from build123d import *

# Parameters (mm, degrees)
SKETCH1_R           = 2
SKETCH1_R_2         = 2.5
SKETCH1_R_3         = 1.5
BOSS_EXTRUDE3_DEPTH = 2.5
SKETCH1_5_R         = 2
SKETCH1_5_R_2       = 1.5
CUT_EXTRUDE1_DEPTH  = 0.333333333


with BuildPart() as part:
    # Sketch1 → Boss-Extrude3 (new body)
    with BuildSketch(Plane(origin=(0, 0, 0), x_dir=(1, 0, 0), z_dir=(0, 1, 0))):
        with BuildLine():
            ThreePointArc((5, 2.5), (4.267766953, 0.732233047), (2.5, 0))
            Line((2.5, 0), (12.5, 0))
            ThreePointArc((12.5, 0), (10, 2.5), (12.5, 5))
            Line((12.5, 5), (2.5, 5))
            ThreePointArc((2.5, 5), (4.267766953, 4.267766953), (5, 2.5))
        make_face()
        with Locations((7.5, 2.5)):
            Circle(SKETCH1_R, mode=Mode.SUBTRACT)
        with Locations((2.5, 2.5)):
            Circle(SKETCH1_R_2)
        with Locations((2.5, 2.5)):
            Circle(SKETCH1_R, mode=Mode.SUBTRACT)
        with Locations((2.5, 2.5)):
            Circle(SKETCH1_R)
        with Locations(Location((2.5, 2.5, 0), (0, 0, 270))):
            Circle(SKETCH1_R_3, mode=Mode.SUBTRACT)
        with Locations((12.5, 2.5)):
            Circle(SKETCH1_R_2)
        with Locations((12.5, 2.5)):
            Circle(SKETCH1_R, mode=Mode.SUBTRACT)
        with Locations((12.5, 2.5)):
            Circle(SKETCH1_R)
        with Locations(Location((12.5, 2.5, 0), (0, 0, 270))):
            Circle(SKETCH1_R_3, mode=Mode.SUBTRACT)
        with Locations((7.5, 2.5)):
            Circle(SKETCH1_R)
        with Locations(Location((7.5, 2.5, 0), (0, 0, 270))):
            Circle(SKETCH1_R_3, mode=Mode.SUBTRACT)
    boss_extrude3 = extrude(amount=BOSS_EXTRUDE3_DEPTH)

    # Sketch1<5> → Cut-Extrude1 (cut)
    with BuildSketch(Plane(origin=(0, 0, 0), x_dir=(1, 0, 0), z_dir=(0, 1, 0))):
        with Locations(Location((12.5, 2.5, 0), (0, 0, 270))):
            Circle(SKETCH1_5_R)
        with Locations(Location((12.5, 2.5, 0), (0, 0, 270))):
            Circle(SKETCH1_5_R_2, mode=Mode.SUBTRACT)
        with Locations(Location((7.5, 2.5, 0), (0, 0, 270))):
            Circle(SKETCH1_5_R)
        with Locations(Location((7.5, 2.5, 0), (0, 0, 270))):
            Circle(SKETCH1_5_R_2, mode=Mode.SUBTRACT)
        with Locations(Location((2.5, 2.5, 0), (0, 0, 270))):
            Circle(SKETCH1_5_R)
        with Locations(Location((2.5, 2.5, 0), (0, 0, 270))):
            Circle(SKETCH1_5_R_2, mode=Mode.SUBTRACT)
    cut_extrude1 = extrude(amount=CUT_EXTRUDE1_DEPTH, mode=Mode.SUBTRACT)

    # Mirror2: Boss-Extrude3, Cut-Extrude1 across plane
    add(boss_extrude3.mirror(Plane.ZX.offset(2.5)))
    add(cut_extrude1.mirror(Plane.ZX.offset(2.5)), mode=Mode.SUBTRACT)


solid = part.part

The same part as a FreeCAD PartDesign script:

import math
import FreeCAD as App
import Part
import Sketcher
from FreeCAD import Vector
Q = App.Units.Quantity

doc = App.newDocument("Part")
body = doc.addObject("PartDesign::Body", "Body")

# Sketch on XZ plane
sketch1 = body.newObject("Sketcher::SketchObject", "Sketch")
sketch1.AttachmentSupport = (doc.getObject("XZ_Plane"), [""])
sketch1.MapMode = "FlatFace"
sketch1.addGeometry(Part.LineSegment(Vector(2.5, 0, 0), Vector(12.5, 0, 0)), False)
sketch1.addGeometry(Part.ArcOfCircle(Part.Circle(Vector(12.5, -2.5, 0), Vector(0, 0, 1), 2.5), math.radians(-90), math.radians(90)), False)
sketch1.addGeometry(Part.LineSegment(Vector(12.5, -5, 0), Vector(2.5, -5, 0)), False)
sketch1.addGeometry(Part.ArcOfCircle(Part.Circle(Vector(2.5, -2.5, 0), Vector(0, 0, 1), 2.5), math.radians(90), math.radians(270)), False)
sketch1.addGeometry(Part.Circle(Vector(2.5, -2.5, 0), Vector(0, 0, 1), 1.5), False)
sketch1.addGeometry(Part.Circle(Vector(7.5, -2.5, 0), Vector(0, 0, 1), 1.5), False)
sketch1.addGeometry(Part.Circle(Vector(12.5, -2.5, 0), Vector(0, 0, 1), 1.5), False)
sketch1.addConstraint(Sketcher.Constraint("Tangent", 0, 2, 1, 2))
sketch1.addConstraint(Sketcher.Constraint("Tangent", 1, 1, 2, 1))
sketch1.addConstraint(Sketcher.Constraint("Tangent", 2, 2, 3, 2))
sketch1.addConstraint(Sketcher.Constraint("Tangent", 3, 1, 0, 1))
sketch1.addConstraint(Sketcher.Constraint("Horizontal", 0))
sketch1.addConstraint(Sketcher.Constraint("Horizontal", 2))
sketch1.addConstraint(Sketcher.Constraint("Coincident", 4, 3, 3, 3))
sketch1.addConstraint(Sketcher.Constraint("Coincident", 6, 3, 1, 3))
sketch1.addConstraint(Sketcher.Constraint("Equal", 4, 5))
sketch1.addConstraint(Sketcher.Constraint("Equal", 5, 6))
sketch1.addConstraint(Sketcher.Constraint("PointOnObject", 0, 2, -1))
sketch1.addConstraint(Sketcher.Constraint("Horizontal", 4, 3, 5, 3))
sketch1.addConstraint(Sketcher.Constraint("Diameter", 4, Q("3 mm")))
sketch1.addConstraint(Sketcher.Constraint("Radius", 1, Q("2.5 mm")))
sketch1.addConstraint(Sketcher.Constraint("DistanceX", 0, 1, 0, 2, Q("10 mm")))
sketch1.addConstraint(Sketcher.Constraint("DistanceX", 5, 3, 1, 3, Q("5 mm")))
sketch1.addConstraint(Sketcher.Constraint("DistanceX", -1, 1, 1, 3, Q("12.5 mm")))
pad1 = body.newObject("PartDesign::Pad", "Pad")
pad1.Profile = sketch1
pad1.Length = 2.5
pad1.Reversed = True

# Sketch on XZ plane
sketch2 = body.newObject("Sketcher::SketchObject", "Sketch001")
sketch2.AttachmentSupport = (doc.getObject("XZ_Plane"), [""])
sketch2.MapMode = "FlatFace"
sketch2.addGeometry(Part.Circle(Vector(12.5, -2.5, 0), Vector(0, 0, 1), 2), False)
sketch2.addGeometry(Part.Circle(Vector(12.5, -2.5, 0), Vector(0, 0, 1), 1.5), False)
sketch2.addGeometry(Part.Circle(Vector(7.5, -2.5, 0), Vector(0, 0, 1), 2), False)
sketch2.addGeometry(Part.Circle(Vector(7.5, -2.5, 0), Vector(0, 0, 1), 1.5), False)
sketch2.addGeometry(Part.Circle(Vector(2.5, -2.5, 0), Vector(0, 0, 1), 2), False)
sketch2.addGeometry(Part.Circle(Vector(2.5, -2.5, 0), Vector(0, 0, 1), 1.5), False)
sketch2.addConstraint(Sketcher.Constraint("Coincident", 1, 3, 0, 3))
sketch2.addConstraint(Sketcher.Constraint("Coincident", 3, 3, 2, 3))
sketch2.addConstraint(Sketcher.Constraint("Coincident", 5, 3, 4, 3))
sketch2.addConstraint(Sketcher.Constraint("Equal", 0, 2))
sketch2.addConstraint(Sketcher.Constraint("Equal", 1, 3))
sketch2.addConstraint(Sketcher.Constraint("Equal", 2, 4))
sketch2.addConstraint(Sketcher.Constraint("Equal", 3, 5))
sketch2.addConstraint(Sketcher.Constraint("Horizontal", 1, 3, 2, 3))
sketch2.addConstraint(Sketcher.Constraint("Horizontal", 3, 3, 4, 3))
sketch2.addConstraint(Sketcher.Constraint("Diameter", 0, Q("4 mm")))
sketch2.addConstraint(Sketcher.Constraint("Diameter", 1, Q("3 mm")))
sketch2.addConstraint(Sketcher.Constraint("DistanceX", 2, 3, 0, 3, Q("5 mm")))
sketch2.addConstraint(Sketcher.Constraint("DistanceX", 4, 3, 2, 3, Q("5 mm")))
sketch2.addConstraint(Sketcher.Constraint("DistanceX", -1, 1, 0, 3, Q("12.5 mm")))
sketch2.addConstraint(Sketcher.Constraint("DistanceY", 0, 3, -1, 1, Q("2.5 mm")))
pocket1 = body.newObject("PartDesign::Pocket", "Pocket")
pocket1.Profile = sketch2
pocket1.Length = 0.333333
doc.recompute()

datumplane = body.newObject("PartDesign::Plane", "DatumPlane")
datumplane.AttachmentSupport = (doc.getObject("XZ_Plane"), [""])
datumplane.MapMode = "FlatFace"
datumplane.AttachmentOffset = App.Placement(Vector(0, 0, -2.5), App.Rotation())
mirrored = body.newObject("PartDesign::Mirrored", "Mirrored")
mirrored.Originals = [pad1, pocket1]
mirrored.MirrorPlane = (datumplane, [""])
body.Tip = mirrored

doc.recompute()
